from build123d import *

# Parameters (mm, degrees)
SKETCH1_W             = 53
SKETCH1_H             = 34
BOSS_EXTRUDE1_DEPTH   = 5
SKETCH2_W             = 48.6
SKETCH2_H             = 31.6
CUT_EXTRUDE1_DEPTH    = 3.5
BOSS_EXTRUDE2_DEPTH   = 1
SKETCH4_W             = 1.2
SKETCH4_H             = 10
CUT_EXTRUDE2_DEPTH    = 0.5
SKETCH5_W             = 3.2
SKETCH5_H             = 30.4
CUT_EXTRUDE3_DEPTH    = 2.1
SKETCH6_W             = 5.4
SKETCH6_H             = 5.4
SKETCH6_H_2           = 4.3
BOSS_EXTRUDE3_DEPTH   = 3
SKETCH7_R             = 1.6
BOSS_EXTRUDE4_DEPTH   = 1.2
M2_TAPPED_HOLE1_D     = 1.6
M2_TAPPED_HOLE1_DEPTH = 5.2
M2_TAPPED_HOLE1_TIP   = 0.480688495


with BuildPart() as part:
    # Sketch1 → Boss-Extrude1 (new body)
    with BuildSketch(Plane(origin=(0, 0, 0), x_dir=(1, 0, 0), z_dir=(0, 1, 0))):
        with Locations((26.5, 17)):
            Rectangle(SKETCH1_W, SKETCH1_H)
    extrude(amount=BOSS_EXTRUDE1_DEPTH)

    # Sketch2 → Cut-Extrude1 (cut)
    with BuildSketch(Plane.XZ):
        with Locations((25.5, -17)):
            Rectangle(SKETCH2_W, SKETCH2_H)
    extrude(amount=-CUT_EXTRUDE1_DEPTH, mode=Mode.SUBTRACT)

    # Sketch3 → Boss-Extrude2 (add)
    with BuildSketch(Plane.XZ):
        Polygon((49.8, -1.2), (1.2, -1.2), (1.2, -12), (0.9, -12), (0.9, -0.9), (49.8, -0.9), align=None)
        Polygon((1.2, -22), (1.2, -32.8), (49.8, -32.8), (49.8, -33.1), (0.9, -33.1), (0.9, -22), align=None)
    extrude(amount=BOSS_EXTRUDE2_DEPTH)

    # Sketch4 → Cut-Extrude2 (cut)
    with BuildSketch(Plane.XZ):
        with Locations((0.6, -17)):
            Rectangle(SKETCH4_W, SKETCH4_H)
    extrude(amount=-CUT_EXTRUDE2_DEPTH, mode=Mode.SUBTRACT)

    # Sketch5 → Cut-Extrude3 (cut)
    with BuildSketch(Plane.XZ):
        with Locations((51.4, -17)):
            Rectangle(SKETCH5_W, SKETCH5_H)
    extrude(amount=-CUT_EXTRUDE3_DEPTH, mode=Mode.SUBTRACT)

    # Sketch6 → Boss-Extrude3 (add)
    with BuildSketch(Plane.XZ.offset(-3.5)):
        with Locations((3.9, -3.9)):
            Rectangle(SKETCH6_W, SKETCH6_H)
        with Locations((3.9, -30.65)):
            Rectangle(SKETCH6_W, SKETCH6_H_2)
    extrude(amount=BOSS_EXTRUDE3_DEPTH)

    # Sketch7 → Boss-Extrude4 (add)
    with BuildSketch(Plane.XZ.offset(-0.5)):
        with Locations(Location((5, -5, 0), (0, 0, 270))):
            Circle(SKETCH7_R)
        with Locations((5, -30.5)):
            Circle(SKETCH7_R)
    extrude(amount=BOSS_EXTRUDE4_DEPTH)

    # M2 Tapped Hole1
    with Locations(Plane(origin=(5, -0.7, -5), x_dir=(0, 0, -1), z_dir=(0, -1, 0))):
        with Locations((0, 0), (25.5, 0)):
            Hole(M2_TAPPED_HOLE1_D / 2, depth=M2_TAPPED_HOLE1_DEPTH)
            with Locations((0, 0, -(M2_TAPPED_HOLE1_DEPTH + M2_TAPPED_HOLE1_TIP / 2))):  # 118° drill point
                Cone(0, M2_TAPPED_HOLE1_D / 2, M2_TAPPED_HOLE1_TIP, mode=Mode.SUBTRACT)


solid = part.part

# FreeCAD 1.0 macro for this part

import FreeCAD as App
import Part
import Sketcher
from FreeCAD import Vector

doc = App.newDocument("Part")
body = doc.addObject("PartDesign::Body", "Body")

sketch1 = doc.addObject("Sketcher::SketchObject", "Sketch")
body.addObject(sketch1)
sketch1.AttachmentSupport = (doc.XZ_Plane, [""])
sketch1.MapMode = "FlatFace"
sketch1.addGeometry([
    Part.LineSegment(Vector(0, -34, 0), Vector(0, 0, 0)),
    Part.LineSegment(Vector(0, 0, 0), Vector(53, 0, 0)),
    Part.LineSegment(Vector(53, 0, 0), Vector(53, -34, 0)),
    Part.LineSegment(Vector(53, -34, 0), Vector(0, -34, 0)),
], False)
sketch1.addConstraint([
    Sketcher.Constraint("Coincident", 0, 2, 1, 1),
    Sketcher.Constraint("Coincident", 1, 2, 2, 1),
    Sketcher.Constraint("Coincident", 2, 2, 3, 1),
    Sketcher.Constraint("Coincident", 3, 2, 0, 1),
    Sketcher.Constraint("Vertical", 0),
    Sketcher.Constraint("Horizontal", 1),
    Sketcher.Constraint("Vertical", 2),
    Sketcher.Constraint("Horizontal", 3),
    Sketcher.Constraint("Coincident", 0, 2, -1, 1),
    Sketcher.Constraint("DistanceX", 1, 1, 1, 2, 53.0),
    Sketcher.Constraint("DistanceY", 0, 1, 0, 2, 34.0),
])
pad1 = doc.addObject("PartDesign::Pad", "Pad")
body.addObject(pad1)
pad1.Profile = sketch1
pad1.Length = 5
pad1.Reversed = True

sketch2 = doc.addObject("Sketcher::SketchObject", "Sketch001")
body.addObject(sketch2)
sketch2.AttachmentSupport = (doc.XZ_Plane, [""])
sketch2.MapMode = "FlatFace"
sketch2.addGeometry([
    Part.LineSegment(Vector(1, -1, 0), Vector(1, -33, 0)),
    Part.LineSegment(Vector(1, -33, 0), Vector(50, -33, 0)),
    Part.LineSegment(Vector(50, -33, 0), Vector(50, -1, 0)),
    Part.LineSegment(Vector(50, -1, 0), Vector(1, -1, 0)),
], False)
sketch2.addConstraint([
    Sketcher.Constraint("Coincident", 0, 2, 1, 1),
    Sketcher.Constraint("Coincident", 1, 2, 2, 1),
    Sketcher.Constraint("Coincident", 2, 2, 3, 1),
    Sketcher.Constraint("Coincident", 3, 2, 0, 1),
    Sketcher.Constraint("Vertical", 0),
    Sketcher.Constraint("Horizontal", 1),
    Sketcher.Constraint("Vertical", 2),
    Sketcher.Constraint("Horizontal", 3),
    Sketcher.Constraint("DistanceX", 1, 1, 1, 2, 48.6),
    Sketcher.Constraint("DistanceY", 0, 2, 0, 1, 31.6),
    Sketcher.Constraint("DistanceX", -1, 1, 0, 2, 1.2),
    Sketcher.Constraint("DistanceY", 0, 2, -1, 1, 32.8),
])
pocket1 = doc.addObject("PartDesign::Pocket", "Pocket")
body.addObject(pocket1)
pocket1.Profile = sketch2
pocket1.Length = 3.5

sketch3 = doc.addObject("Sketcher::SketchObject", "Sketch002")
body.addObject(sketch3)
sketch3.AttachmentSupport = (doc.XZ_Plane, [""])
sketch3.MapMode = "FlatFace"
sketch3.addGeometry([
    Part.LineSegment(Vector(1.2, -1.2, 0), Vector(49.8, -1.2, 0)),
    Part.LineSegment(Vector(49.8, -1.2, 0), Vector(49.8, -0.9, 0)),
    Part.LineSegment(Vector(49.8, -0.9, 0), Vector(0.9, -0.9, 0)),
    Part.LineSegment(Vector(0.9, -0.9, 0), Vector(0.9, -12, 0)),
    Part.LineSegment(Vector(0.9, -12, 0), Vector(1.2, -12, 0)),
    Part.LineSegment(Vector(1.2, -12, 0), Vector(1.2, -1.2, 0)),
    Part.LineSegment(Vector(1.2, -32.8, 0), Vector(1.2, -22, 0)),
    Part.LineSegment(Vector(1.2, -22, 0), Vector(0.9, -22, 0)),
    Part.LineSegment(Vector(0.9, -22, 0), Vector(0.9, -33.1, 0)),
    Part.LineSegment(Vector(0.9, -33.1, 0), Vector(49.8, -33.1, 0)),
    Part.LineSegment(Vector(49.8, -33.1, 0), Vector(49.8, -32.8, 0)),
    Part.LineSegment(Vector(49.8, -32.8, 0), Vector(1.2, -32.8, 0)),
], False)
sketch3.addConstraint([
    Sketcher.Constraint("Coincident", 0, 2, 1, 1),
    Sketcher.Constraint("Coincident", 1, 2, 2, 1),
    Sketcher.Constraint("Coincident", 2, 2, 3, 1),
    Sketcher.Constraint("Coincident", 3, 2, 4, 1),
    Sketcher.Constraint("Coincident", 4, 2, 5, 1),
    Sketcher.Constraint("Coincident", 5, 2, 0, 1),
    Sketcher.Constraint("Coincident", 6, 2, 7, 1),
    Sketcher.Constraint("Coincident", 7, 2, 8, 1),
    Sketcher.Constraint("Coincident", 8, 2, 9, 1),
    Sketcher.Constraint("Coincident", 9, 2, 10, 1),
    Sketcher.Constraint("Coincident", 10, 2, 11, 1),
    Sketcher.Constraint("Coincident", 11, 2, 6, 1),
    Sketcher.Constraint("Horizontal", 0),
    Sketcher.Constraint("Vertical", 1),
    Sketcher.Constraint("Horizontal", 2),
    Sketcher.Constraint("Vertical", 3),
    Sketcher.Constraint("Horizontal", 4),
    Sketcher.Constraint("Vertical", 5),
    Sketcher.Constraint("Vertical", 6),
    Sketcher.Constraint("Horizontal", 7),
    Sketcher.Constraint("Vertical", 8),
    Sketcher.Constraint("Horizontal", 9),
    Sketcher.Constraint("Vertical", 10),
    Sketcher.Constraint("Horizontal", 11),
    Sketcher.Constraint("Vertical", 5, 2, 6, 2),
    Sketcher.Constraint("Vertical", 3, 2, 7, 2),
    Sketcher.Constraint("Vertical", 1, 2, 9, 2),
    Sketcher.Constraint("Equal", 7, 1),
    Sketcher.Constraint("Equal", 5, 6),
    Sketcher.Constraint("Equal", 3, 8),
    Sketcher.Constraint("DistanceX", 0, 1, 0, 2, 48.6),
    Sketcher.Constraint("DistanceX", 2, 2, 2, 1, 48.9),
    Sketcher.Constraint("DistanceY", 3, 2, 3, 1, 11.1),
    Sketcher.Constraint("DistanceY", 3, 2, -1, 1, 12.0),
    Sketcher.Constraint("DistanceY", 6, 2, -1, 1, 22.0),
    Sketcher.Constraint("DistanceX", -1, 1, 0, 2, 49.8),
])
pad2 = doc.addObject("PartDesign::Pad", "Pad001")
body.addObject(pad2)
pad2.Profile = sketch3
pad2.Length = 1

sketch4 = doc.addObject("Sketcher::SketchObject", "Sketch003")
body.addObject(sketch4)
sketch4.AttachmentSupport = (doc.XZ_Plane, [""])
sketch4.MapMode = "FlatFace"
sketch4.addGeometry([
    Part.LineSegment(Vector(0, -12, 0), Vector(0, -22, 0)),
    Part.LineSegment(Vector(0, -22, 0), Vector(1.2, -22, 0)),
    Part.LineSegment(Vector(1.2, -22, 0), Vector(1.2, -12, 0)),
    Part.LineSegment(Vector(1.2, -12, 0), Vector(0, -12, 0)),
], False)
sketch4.addConstraint([
    Sketcher.Constraint("Coincident", 0, 2, 1, 1),
    Sketcher.Constraint("Coincident", 1, 2, 2, 1),
    Sketcher.Constraint("Coincident", 2, 2, 3, 1),
    Sketcher.Constraint("Coincident", 3, 2, 0, 1),
    Sketcher.Constraint("Vertical", 0),
    Sketcher.Constraint("Horizontal", 1),
    Sketcher.Constraint("Vertical", 2),
    Sketcher.Constraint("Horizontal", 3),
    Sketcher.Constraint("PointOnObject", 0, 2, -2),
    Sketcher.Constraint("DistanceY", 0, 2, 0, 1, 10.0),
    Sketcher.Constraint("DistanceX", 1, 1, 1, 2, 1.2),
    Sketcher.Constraint("DistanceY", 0, 2, -1, 1, 22.0),
])
pocket2 = doc.addObject("PartDesign::Pocket", "Pocket001")
body.addObject(pocket2)
pocket2.Profile = sketch4
pocket2.Length = 0.5

sketch5 = doc.addObject("Sketcher::SketchObject", "Sketch004")
body.addObject(sketch5)
sketch5.AttachmentSupport = (doc.XZ_Plane, [""])
sketch5.MapMode = "FlatFace"
sketch5.addGeometry([
    Part.LineSegment(Vector(49.8, -1.8, 0), Vector(49.8, -32.2, 0)),
    Part.LineSegment(Vector(49.8, -32.2, 0), Vector(53, -32.2, 0)),
    Part.LineSegment(Vector(53, -32.2, 0), Vector(53, -1.8, 0)),
    Part.LineSegment(Vector(53, -1.8, 0), Vector(49.8, -1.8, 0)),
], False)
sketch5.addConstraint([
    Sketcher.Constraint("Coincident", 0, 2, 1, 1),
    Sketcher.Constraint("Coincident", 1, 2, 2, 1),
    Sketcher.Constraint("Coincident", 2, 2, 3, 1),
    Sketcher.Constraint("Coincident", 3, 2, 0, 1),
    Sketcher.Constraint("Vertical", 0),
    Sketcher.Constraint("Horizontal", 1),
    Sketcher.Constraint("Vertical", 2),
    Sketcher.Constraint("Horizontal", 3),
    Sketcher.Constraint("DistanceX", 1, 1, 1, 2, 3.2),
    Sketcher.Constraint("DistanceY", 0, 2, 0, 1, 30.4),
    Sketcher.Constraint("DistanceX", -1, 1, 1, 2, 53.0),
    Sketcher.Constraint("DistanceY", 0, 2, -1, 1, 32.2),
])
pocket3 = doc.addObject("PartDesign::Pocket", "Pocket002")
body.addObject(pocket3)
pocket3.Profile = sketch5
pocket3.Length = 2.1

sketch6 = doc.addObject("Sketcher::SketchObject", "Sketch005")
body.addObject(sketch6)
sketch6.AttachmentSupport = (doc.XZ_Plane, [""])
sketch6.MapMode = "FlatFace"
sketch6.AttachmentOffset = App.Placement(Vector(0, 0, -3.5), App.Rotation())
sketch6.addGeometry([
    Part.LineSegment(Vector(1.2, -1.2, 0), Vector(1.2, -6.6, 0)),
    Part.LineSegment(Vector(1.2, -6.6, 0), Vector(6.6, -6.6, 0)),
    Part.LineSegment(Vector(6.6, -6.6, 0), Vector(6.6, -1.2, 0)),
    Part.LineSegment(Vector(6.6, -1.2, 0), Vector(1.2, -1.2, 0)),
    Part.LineSegment(Vector(1.2, -28.5, 0), Vector(1.2, -32.8, 0)),
    Part.LineSegment(Vector(1.2, -32.8, 0), Vector(6.6, -32.8, 0)),
    Part.LineSegment(Vector(6.6, -32.8, 0), Vector(6.6, -28.5, 0)),
    Part.LineSegment(Vector(6.6, -28.5, 0), Vector(1.2, -28.5, 0)),
], False)
sketch6.addConstraint([
    Sketcher.Constraint("Coincident", 0, 2, 1, 1),
    Sketcher.Constraint("Coincident", 1, 2, 2, 1),
    Sketcher.Constraint("Coincident", 2, 2, 3, 1),
    Sketcher.Constraint("Coincident", 3, 2, 0, 1),
    Sketcher.Constraint("Coincident", 4, 2, 5, 1),
    Sketcher.Constraint("Coincident", 5, 2, 6, 1),
    Sketcher.Constraint("Coincident", 6, 2, 7, 1),
    Sketcher.Constraint("Coincident", 7, 2, 4, 1),
    Sketcher.Constraint("Vertical", 0),
    Sketcher.Constraint("Horizontal", 1),
    Sketcher.Constraint("Vertical", 2),
    Sketcher.Constraint("Horizontal", 3),
    Sketcher.Constraint("Vertical", 4),
    Sketcher.Constraint("Horizontal", 5),
    Sketcher.Constraint("Vertical", 6),
    Sketcher.Constraint("Horizontal", 7),
    Sketcher.Constraint("Vertical", 3, 2, 4, 2),
    Sketcher.Constraint("Vertical", 2, 2, 5, 2),
    Sketcher.Constraint("Equal", 7, 0),
    Sketcher.Constraint("DistanceX", 1, 1, 1, 2, 5.4),
    Sketcher.Constraint("DistanceY", 4, 2, 4, 1, 4.3),
    Sketcher.Constraint("DistanceX", -1, 1, 0, 2, 1.2),
    Sketcher.Constraint("DistanceY", 0, 2, -1, 1, 6.6),
    Sketcher.Constraint("DistanceY", 4, 2, -1, 1, 32.8),
])
pad3 = doc.addObject("PartDesign::Pad", "Pad002")
body.addObject(pad3)
pad3.Profile = sketch6
pad3.Length = 3

sketch7 = doc.addObject("Sketcher::SketchObject", "Sketch006")
body.addObject(sketch7)
sketch7.AttachmentSupport = (doc.XZ_Plane, [""])
sketch7.MapMode = "FlatFace"
sketch7.AttachmentOffset = App.Placement(Vector(0, 0, -0.5), App.Rotation())
sketch7.addGeometry([
    Part.Circle(Vector(5, -5, 0), Vector(0, 0, 1), 1.6),
    Part.Circle(Vector(5, -30.5, 0), Vector(0, 0, 1), 1.6),
], False)
sketch7.addConstraint([
    Sketcher.Constraint("Equal", 0, 1),
    Sketcher.Constraint("Vertical", 0, 3, 1, 3),
    Sketcher.Constraint("Diameter", 0, 3.2),
    Sketcher.Constraint("DistanceX", -1, 1, 0, 3, 5.0),
    Sketcher.Constraint("DistanceY", 0, 3, -1, 1, 5.0),
    Sketcher.Constraint("DistanceY", 1, 3, -1, 1, 30.5),
])
pad4 = doc.addObject("PartDesign::Pad", "Pad003")
body.addObject(pad4)
pad4.Profile = sketch7
pad4.Length = 1.2

sketch8 = doc.addObject("Sketcher::SketchObject", "Sketch007")
body.addObject(sketch8)
sketch8.AttachmentSupport = (doc.XZ_Plane, [""])
sketch8.MapMode = "FlatFace"
sketch8.AttachmentOffset = App.Placement(Vector(0, 0, 0.7), App.Rotation())
sketch8.addGeometry([
    Part.Circle(Vector(5, -5, 0), Vector(0, 0, 1), 0.8),
    Part.Circle(Vector(5, -30.5, 0), Vector(0, 0, 1), 0.8),
], False)
sketch8.addConstraint([
    Sketcher.Constraint("Equal", 0, 1),
    Sketcher.Constraint("Vertical", 0, 3, 1, 3),
    Sketcher.Constraint("Diameter", 0, 1.6),
    Sketcher.Constraint("DistanceX", -1, 1, 0, 3, 5.0),
    Sketcher.Constraint("DistanceY", 0, 3, -1, 1, 5.0),
    Sketcher.Constraint("DistanceY", 1, 3, -1, 1, 30.5),
])
doc.recompute()
hole = doc.addObject("PartDesign::Hole", "Hole")
body.addObject(hole)
hole.Profile = sketch8
hole.ThreadType = "None"
hole.Diameter = 1.6
hole.DepthType = "Dimension"
hole.Depth = 5.2
hole.DrillPoint = "Angled"
hole.DrillPointAngle = 118

doc.recompute()
